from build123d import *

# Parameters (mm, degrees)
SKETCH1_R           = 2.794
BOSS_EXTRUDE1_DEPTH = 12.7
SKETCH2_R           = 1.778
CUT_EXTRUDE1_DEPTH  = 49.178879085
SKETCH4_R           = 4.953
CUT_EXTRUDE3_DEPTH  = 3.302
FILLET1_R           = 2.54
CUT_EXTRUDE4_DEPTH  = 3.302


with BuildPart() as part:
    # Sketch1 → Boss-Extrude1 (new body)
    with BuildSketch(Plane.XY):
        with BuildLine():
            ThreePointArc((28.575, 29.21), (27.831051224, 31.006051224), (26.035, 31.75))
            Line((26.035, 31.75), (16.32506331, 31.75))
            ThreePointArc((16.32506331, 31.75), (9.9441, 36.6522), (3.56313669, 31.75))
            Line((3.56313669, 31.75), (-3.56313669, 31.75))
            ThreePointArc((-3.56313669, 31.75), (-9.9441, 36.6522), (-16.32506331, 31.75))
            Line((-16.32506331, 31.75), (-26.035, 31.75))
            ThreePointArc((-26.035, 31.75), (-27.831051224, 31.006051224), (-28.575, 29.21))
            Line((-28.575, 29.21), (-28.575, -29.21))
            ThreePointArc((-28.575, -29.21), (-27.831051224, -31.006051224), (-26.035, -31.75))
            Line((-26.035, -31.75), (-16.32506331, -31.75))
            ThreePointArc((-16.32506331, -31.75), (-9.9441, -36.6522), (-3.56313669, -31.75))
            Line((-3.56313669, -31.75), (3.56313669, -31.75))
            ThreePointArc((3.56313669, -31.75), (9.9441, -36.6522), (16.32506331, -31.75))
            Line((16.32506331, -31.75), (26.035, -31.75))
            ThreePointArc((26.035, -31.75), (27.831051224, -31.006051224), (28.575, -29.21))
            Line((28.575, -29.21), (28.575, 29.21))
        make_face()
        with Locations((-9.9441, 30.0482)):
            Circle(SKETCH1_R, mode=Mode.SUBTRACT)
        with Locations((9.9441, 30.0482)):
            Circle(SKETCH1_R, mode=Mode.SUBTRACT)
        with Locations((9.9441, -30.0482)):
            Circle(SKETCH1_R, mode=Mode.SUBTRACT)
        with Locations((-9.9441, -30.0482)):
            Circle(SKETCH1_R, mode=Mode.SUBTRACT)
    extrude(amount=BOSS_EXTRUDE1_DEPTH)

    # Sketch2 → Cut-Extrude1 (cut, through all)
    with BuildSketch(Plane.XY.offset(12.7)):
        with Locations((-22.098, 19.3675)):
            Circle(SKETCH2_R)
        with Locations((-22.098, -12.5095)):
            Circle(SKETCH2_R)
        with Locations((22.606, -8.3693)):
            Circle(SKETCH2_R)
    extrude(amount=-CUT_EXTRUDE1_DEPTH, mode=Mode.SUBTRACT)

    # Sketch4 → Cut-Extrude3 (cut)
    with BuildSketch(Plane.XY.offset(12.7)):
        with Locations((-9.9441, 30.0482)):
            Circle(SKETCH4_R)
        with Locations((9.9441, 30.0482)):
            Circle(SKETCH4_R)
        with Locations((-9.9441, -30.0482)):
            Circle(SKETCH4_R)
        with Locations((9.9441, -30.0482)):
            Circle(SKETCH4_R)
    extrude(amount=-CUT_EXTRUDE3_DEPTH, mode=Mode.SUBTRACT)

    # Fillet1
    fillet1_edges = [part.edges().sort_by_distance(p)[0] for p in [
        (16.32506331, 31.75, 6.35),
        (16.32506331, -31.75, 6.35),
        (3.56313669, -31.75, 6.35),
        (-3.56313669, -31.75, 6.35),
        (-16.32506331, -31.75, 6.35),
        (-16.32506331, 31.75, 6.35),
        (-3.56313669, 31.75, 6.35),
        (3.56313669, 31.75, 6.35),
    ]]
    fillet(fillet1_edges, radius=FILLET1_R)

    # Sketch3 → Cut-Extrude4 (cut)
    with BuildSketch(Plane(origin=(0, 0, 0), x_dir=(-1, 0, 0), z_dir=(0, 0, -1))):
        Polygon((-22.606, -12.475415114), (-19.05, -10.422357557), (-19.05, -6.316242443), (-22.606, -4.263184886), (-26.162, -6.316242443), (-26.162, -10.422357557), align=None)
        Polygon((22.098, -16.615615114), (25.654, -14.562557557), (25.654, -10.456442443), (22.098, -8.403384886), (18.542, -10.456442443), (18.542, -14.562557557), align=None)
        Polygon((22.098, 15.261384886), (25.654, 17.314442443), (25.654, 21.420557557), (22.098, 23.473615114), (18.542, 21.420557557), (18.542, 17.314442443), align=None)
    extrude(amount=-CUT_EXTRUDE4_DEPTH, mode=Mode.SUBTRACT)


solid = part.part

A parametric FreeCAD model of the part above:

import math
import FreeCAD as App
import Part
import Sketcher
Q = App.Units.Quantity


def edges_at(feature, points):
    """Names of the edges that pass closest to the given points."""
    edges = feature.Shape.Edges
    near = lambda p: min(range(len(edges)), key=lambda i: edges[i].distToShape(Part.Vertex(*p))[0])
    return sorted({f"Edge{near(p) + 1}" for p in points})


def add_polygon(sketch, points):
    """Adds a closed chain of lines whose ends are joined by coincident constraints."""
    first, n = sketch.GeometryCount, len(points)
    for a, b in zip(points, points[1:] + points[:1]):
        sketch.addGeometry(Part.LineSegment(App.Vector(*a, 0), App.Vector(*b, 0)), False)
    for i in range(n):
        sketch.addConstraint(Sketcher.Constraint("Coincident", first + i, 2, first + (i + 1) % n, 1))

doc = App.newDocument("Part")
body = doc.addObject("PartDesign::Body", "Body")

# Sketch on XY plane
sketch1 = body.newObject("Sketcher::SketchObject", "Sketch")
sketch1.AttachmentSupport = (doc.getObject("XY_Plane"), [""])
sketch1.MapMode = "FlatFace"
sketch1.addGeometry(Part.ArcOfCircle(Part.Circle(App.Vector(26.035, 29.21, 0), App.Vector(0, 0, 1), 2.54), math.radians(0), math.radians(90)), False)
sketch1.addGeometry(Part.LineSegment(App.Vector(26.035, 31.75, 0), App.Vector(16.325063, 31.75, 0)), False)
sketch1.addGeometry(Part.ArcOfCircle(Part.Circle(App.Vector(9.9441, 30.0482, 0), App.Vector(0, 0, 1), 6.604), math.radians(14.933176), math.radians(165.066824)), False)
sketch1.addGeometry(Part.LineSegment(App.Vector(3.563137, 31.75, 0), App.Vector(-3.563137, 31.75, 0)), False)
sketch1.addGeometry(Part.ArcOfCircle(Part.Circle(App.Vector(-9.9441, 30.0482, 0), App.Vector(0, 0, 1), 6.604), math.radians(14.933176), math.radians(165.066824)), False)
sketch1.addGeometry(Part.LineSegment(App.Vector(-16.325063, 31.75, 0), App.Vector(-26.035, 31.75, 0)), False)
sketch1.addGeometry(Part.ArcOfCircle(Part.Circle(App.Vector(-26.035, 29.21, 0), App.Vector(0, 0, 1), 2.54), math.radians(90), math.radians(180)), False)
sketch1.addGeometry(Part.LineSegment(App.Vector(-28.575, 29.21, 0), App.Vector(-28.575, -29.21, 0)), False)
sketch1.addGeometry(Part.ArcOfCircle(Part.Circle(App.Vector(-26.035, -29.21, 0), App.Vector(0, 0, 1), 2.54), math.radians(-180), math.radians(-90)), False)
sketch1.addGeometry(Part.LineSegment(App.Vector(-26.035, -31.75, 0), App.Vector(-16.325063, -31.75, 0)), False)
sketch1.addGeometry(Part.ArcOfCircle(Part.Circle(App.Vector(-9.9441, -30.0482, 0), App.Vector(0, 0, 1), 6.604), math.radians(-165.066824), math.radians(-14.933176)), False)
sketch1.addGeometry(Part.LineSegment(App.Vector(-3.563137, -31.75, 0), App.Vector(3.563137, -31.75, 0)), False)
sketch1.addGeometry(Part.ArcOfCircle(Part.Circle(App.Vector(9.9441, -30.0482, 0), App.Vector(0, 0, 1), 6.604), math.radians(-165.066824), math.radians(-14.933176)), False)
sketch1.addGeometry(Part.LineSegment(App.Vector(16.325063, -31.75, 0), App.Vector(26.035, -31.75, 0)), False)
sketch1.addGeometry(Part.ArcOfCircle(Part.Circle(App.Vector(26.035, -29.21, 0), App.Vector(0, 0, 1), 2.54), math.radians(-90), math.radians(0)), False)
sketch1.addGeometry(Part.LineSegment(App.Vector(28.575, -29.21, 0), App.Vector(28.575, 29.21, 0)), False)
sketch1.addGeometry(Part.Circle(App.Vector(-9.9441, -30.0482, 0), App.Vector(0, 0, 1), 2.794), False)
sketch1.addGeometry(Part.Circle(App.Vector(9.9441, -30.0482, 0), App.Vector(0, 0, 1), 2.794), False)
sketch1.addGeometry(Part.Circle(App.Vector(-9.9441, 30.0482, 0), App.Vector(0, 0, 1), 2.794), False)
sketch1.addGeometry(Part.Circle(App.Vector(9.9441, 30.0482, 0), App.Vector(0, 0, 1), 2.794), False)
sketch1.addConstraint(Sketcher.Constraint("Tangent", 0, 2, 1, 1))
sketch1.addConstraint(Sketcher.Constraint("Coincident", 1, 2, 2, 1))
sketch1.addConstraint(Sketcher.Constraint("Coincident", 2, 2, 3, 1))
sketch1.addConstraint(Sketcher.Constraint("Coincident", 3, 2, 4, 1))
sketch1.addConstraint(Sketcher.Constraint("Coincident", 4, 2, 5, 1))
sketch1.addConstraint(Sketcher.Constraint("Tangent", 5, 2, 6, 1))
sketch1.addConstraint(Sketcher.Constraint("Tangent", 6, 2, 7, 1))
sketch1.addConstraint(Sketcher.Constraint("Tangent", 7, 2, 8, 1))
sketch1.addConstraint(Sketcher.Constraint("Tangent", 8, 2, 9, 1))
sketch1.addConstraint(Sketcher.Constraint("Coincident", 9, 2, 10, 1))
sketch1.addConstraint(Sketcher.Constraint("Coincident", 10, 2, 11, 1))
sketch1.addConstraint(Sketcher.Constraint("Coincident", 11, 2, 12, 1))
sketch1.addConstraint(Sketcher.Constraint("Coincident", 12, 2, 13, 1))
sketch1.addConstraint(Sketcher.Constraint("Tangent", 13, 2, 14, 1))
sketch1.addConstraint(Sketcher.Constraint("Tangent", 14, 2, 15, 1))
sketch1.addConstraint(Sketcher.Constraint("Tangent", 15, 2, 0, 1))
sketch1.addConstraint(Sketcher.Constraint("Horizontal", 1))
sketch1.addConstraint(Sketcher.Constraint("Horizontal", 3))
sketch1.addConstraint(Sketcher.Constraint("Horizontal", 5))
sketch1.addConstraint(Sketcher.Constraint("Vertical", 7))
sketch1.addConstraint(Sketcher.Constraint("Horizontal", 9))
sketch1.addConstraint(Sketcher.Constraint("Horizontal", 11))
sketch1.addConstraint(Sketcher.Constraint("Horizontal", 13))
sketch1.addConstraint(Sketcher.Constraint("Vertical", 15))
sketch1.addConstraint(Sketcher.Constraint("Coincident", 16, 3, 10, 3))
sketch1.addConstraint(Sketcher.Constraint("Coincident", 17, 3, 12, 3))
sketch1.addConstraint(Sketcher.Constraint("Coincident", 18, 3, 4, 3))
sketch1.addConstraint(Sketcher.Constraint("Coincident", 19, 3, 2, 3))
sketch1.addConstraint(Sketcher.Constraint("Equal", 2, 4))
sketch1.addConstraint(Sketcher.Constraint("Equal", 0, 6))
sketch1.addConstraint(Sketcher.Constraint("Equal", 6, 8))
sketch1.addConstraint(Sketcher.Constraint("Equal", 4, 10))
sketch1.addConstraint(Sketcher.Constraint("Equal", 10, 12))
sketch1.addConstraint(Sketcher.Constraint("Equal", 8, 14))
sketch1.addConstraint(Sketcher.Constraint("Equal", 16, 17))
sketch1.addConstraint(Sketcher.Constraint("Equal", 17, 18))
sketch1.addConstraint(Sketcher.Constraint("Equal", 18, 19))
sketch1.addConstraint(Sketcher.Constraint("Symmetric", 0, 3, 8, 3, -1, 1))
sketch1.addConstraint(Sketcher.Constraint("Symmetric", 2, 3, 10, 3, -1, 1))
sketch1.addConstraint(Sketcher.Constraint("Symmetric", 4, 3, 12, 3, -1, 1))
sketch1.addConstraint(Sketcher.Constraint("Symmetric", 2, 3, 4, 3, -2))
sketch1.addConstraint(Sketcher.Constraint("Horizontal", 0, 3, 6, 3))
sketch1.addConstraint(Sketcher.Constraint("Horizontal", 8, 3, 14, 3))
sketch1.addConstraint(Sketcher.Constraint("Horizontal", 1, 2, 2, 2))
sketch1.addConstraint(Sketcher.Constraint("Horizontal", 9, 2, 10, 2))
sketch1.addConstraint(Sketcher.Constraint("Radius", 0, Q("0.1 in")))
sketch1.addConstraint(Sketcher.Constraint("Diameter", 16, Q("0.22 in")))
sketch1.addConstraint(Sketcher.Constraint("Radius", 2, Q("0.26 in")))
sketch1.addConstraint(Sketcher.Constraint("DistanceY", 7, 2, 7, 1, Q("2.3 in")))
sketch1.addConstraint(Sketcher.Constraint("DistanceX", 6, 3, 0, 3, Q("2.05 in")))
sketch1.addConstraint(Sketcher.Constraint("DistanceY", -1, 1, 2, 3, Q("1.183 in")))
sketch1.addConstraint(Sketcher.Constraint("DistanceX", 4, 3, 2, 3, Q("0.783 in")))
pad1 = body.newObject("PartDesign::Pad", "Pad")
pad1.Profile = sketch1
pad1.Length = Q("0.5 in")

# Sketch on XY plane
sketch2 = body.newObject("Sketcher::SketchObject", "Sketch001")
sketch2.AttachmentSupport = (doc.getObject("XY_Plane"), [""])
sketch2.MapMode = "FlatFace"
sketch2.AttachmentOffset = App.Placement(App.Vector(0, 0, 0.5 * 25.4), App.Rotation())
sketch2.addGeometry(Part.Circle(App.Vector(-22.098, 19.3675, 0), App.Vector(0, 0, 1), 1.778), False)
sketch2.addGeometry(Part.Circle(App.Vector(-22.098, -12.5095, 0), App.Vector(0, 0, 1), 1.778), False)
sketch2.addGeometry(Part.Circle(App.Vector(22.606, -8.3693, 0), App.Vector(0, 0, 1), 1.778), False)
sketch2.addConstraint(Sketcher.Constraint("Equal", 0, 1))
sketch2.addConstraint(Sketcher.Constraint("Equal", 1, 2))
sketch2.addConstraint(Sketcher.Constraint("Vertical", 0, 3, 1, 3))
sketch2.addConstraint(Sketcher.Constraint("Diameter", 0, Q("0.14 in")))
sketch2.addConstraint(Sketcher.Constraint("DistanceX", 0, 3, -1, 1, Q("0.87 in")))
sketch2.addConstraint(Sketcher.Constraint("DistanceX", -1, 1, 2, 3, Q("0.89 in")))
sketch2.addConstraint(Sketcher.Constraint("DistanceY", 1, 3, 0, 3, Q("1.255 in")))
sketch2.addConstraint(Sketcher.Constraint("DistanceY", 1, 3, 2, 3, Q("0.163 in")))
sketch2.addConstraint(Sketcher.Constraint("DistanceY", -1, 1, 0, 3, Q("0.7625 in")))
pocket1 = body.newObject("PartDesign::Pocket", "Pocket")
pocket1.Profile = sketch2
pocket1.Type = "ThroughAll"

# Sketch on XY plane
sketch3 = body.newObject("Sketcher::SketchObject", "Sketch002")
sketch3.AttachmentSupport = (doc.getObject("XY_Plane"), [""])
sketch3.MapMode = "FlatFace"
sketch3.AttachmentOffset = App.Placement(App.Vector(0, 0, 0.5 * 25.4), App.Rotation())
sketch3.addGeometry(Part.Circle(App.Vector(-9.9441, 30.0482, 0), App.Vector(0, 0, 1), 4.953), False)
sketch3.addGeometry(Part.Circle(App.Vector(9.9441, 30.0482, 0), App.Vector(0, 0, 1), 4.953), False)
sketch3.addGeometry(Part.Circle(App.Vector(-9.9441, -30.0482, 0), App.Vector(0, 0, 1), 4.953), False)
sketch3.addGeometry(Part.Circle(App.Vector(9.9441, -30.0482, 0), App.Vector(0, 0, 1), 4.953), False)
sketch3.addConstraint(Sketcher.Constraint("Equal", 0, 1))
sketch3.addConstraint(Sketcher.Constraint("Equal", 1, 2))
sketch3.addConstraint(Sketcher.Constraint("Equal", 2, 3))
sketch3.addConstraint(Sketcher.Constraint("Symmetric", 1, 3, 2, 3, -1, 1))
sketch3.addConstraint(Sketcher.Constraint("Symmetric", 0, 3, 3, 3, -1, 1))
sketch3.addConstraint(Sketcher.Constraint("Symmetric", 0, 3, 1, 3, -2))
sketch3.addConstraint(Sketcher.Constraint("Diameter", 0, Q("0.39 in")))
sketch3.addConstraint(Sketcher.Constraint("DistanceY", -1, 1, 0, 3, Q("1.183 in")))
sketch3.addConstraint(Sketcher.Constraint("DistanceX", 0, 3, 1, 3, Q("0.783 in")))
pocket2 = body.newObject("PartDesign::Pocket", "Pocket001")
pocket2.Profile = sketch3
pocket2.Length = Q("0.13 in")
doc.recompute()

fillet = body.newObject("PartDesign::Fillet", "Fillet")
fillet.Base = (pocket2, edges_at(pocket2, [
    (16.325, 31.75, 6.35),
    (16.325, -31.75, 6.35),
    (3.563, -31.75, 6.35),
    (-3.563, -31.75, 6.35),
    (-16.325, -31.75, 6.35),
    (-16.325, 31.75, 6.35),
    (-3.563, 31.75, 6.35),
    (3.563, 31.75, 6.35),
]))
fillet.Radius = Q("0.1 in")

# Sketch on XY plane
sketch4 = body.newObject("Sketcher::SketchObject", "Sketch003")
sketch4.AttachmentSupport = (doc.getObject("XY_Plane"), [""])
sketch4.MapMode = "FlatFace"
add_polygon(sketch4, [(22.606, -12.475415), (19.05, -10.422358), (19.05, -6.316242), (22.606, -4.263185), (26.162, -6.316242), (26.162, -10.422358)])  # lines 0-5
add_polygon(sketch4, [(-22.098, -16.615615), (-25.654, -14.562558), (-25.654, -10.456442), (-22.098, -8.403385), (-18.542, -10.456442), (-18.542, -14.562558)])  # lines 6-11
add_polygon(sketch4, [(-22.098, 15.261385), (-25.654, 17.314442), (-25.654, 21.420558), (-22.098, 23.473615), (-18.542, 21.420558), (-18.542, 17.314442)])  # lines 12-17
sketch4.addConstraint(Sketcher.Constraint("Vertical", 1))
sketch4.addConstraint(Sketcher.Constraint("Vertical", 4))
sketch4.addConstraint(Sketcher.Constraint("Vertical", 7))
sketch4.addConstraint(Sketcher.Constraint("Vertical", 10))
sketch4.addConstraint(Sketcher.Constraint("Vertical", 13))
sketch4.addConstraint(Sketcher.Constraint("Vertical", 16))
sketch4.addConstraint(Sketcher.Constraint("Parallel", 0, 3))
sketch4.addConstraint(Sketcher.Constraint("Parallel", 2, 5))
sketch4.addConstraint(Sketcher.Constraint("Parallel", 3, 6))
sketch4.addConstraint(Sketcher.Constraint("Parallel", 5, 8))
sketch4.addConstraint(Sketcher.Constraint("Parallel", 6, 9))
sketch4.addConstraint(Sketcher.Constraint("Parallel", 8, 11))
sketch4.addConstraint(Sketcher.Constraint("Parallel", 9, 12))
sketch4.addConstraint(Sketcher.Constraint("Parallel", 11, 14))
sketch4.addConstraint(Sketcher.Constraint("Parallel", 12, 15))
sketch4.addConstraint(Sketcher.Constraint("Parallel", 14, 17))
sketch4.addConstraint(Sketcher.Constraint("Horizontal", 1, 2, 3, 2))
sketch4.addConstraint(Sketcher.Constraint("Horizontal", 0, 2, 4, 2))
sketch4.addConstraint(Sketcher.Constraint("Horizontal", 7, 2, 9, 2))
sketch4.addConstraint(Sketcher.Constraint("Horizontal", 6, 2, 10, 2))
sketch4.addConstraint(Sketcher.Constraint("Horizontal", 13, 2, 15, 2))
sketch4.addConstraint(Sketcher.Constraint("Horizontal", 12, 2, 16, 2))
sketch4.addConstraint(Sketcher.Constraint("Vertical", 2, 2, 5, 2))
sketch4.addConstraint(Sketcher.Constraint("Vertical", 7, 2, 12, 2))
sketch4.addConstraint(Sketcher.Constraint("Vertical", 11, 2, 14, 2))
sketch4.addConstraint(Sketcher.Constraint("Equal", 4, 7))
sketch4.addConstraint(Sketcher.Constraint("Equal", 10, 13))
sketch4.addConstraint(Sketcher.Constraint("Equal", 5, 6))
sketch4.addConstraint(Sketcher.Constraint("Angle", 0, Q("150 deg")))
sketch4.addConstraint(Sketcher.Constraint("DistanceX", 6, 2, 5, 2, Q("1.9 in")))
sketch4.addConstraint(Sketcher.Constraint("DistanceX", -1, 1, 0, 2, Q("0.75 in")))
sketch4.addConstraint(Sketcher.Constraint("DistanceX", -1, 1, 2, 2, Q("0.89 in")))
sketch4.addConstraint(Sketcher.Constraint("DistanceY", 6, 2, 0, 2, Q("0.163 in")))
sketch4.addConstraint(Sketcher.Constraint("DistanceY", 6, 2, 12, 2, Q("1.255 in")))
sketch4.addConstraint(Sketcher.Constraint("DistanceY", 1, 1, 1, 2, 4.106115))
sketch4.addConstraint(Sketcher.Constraint("DistanceY", 0, 2, -1, 1, 10.422358))
pocket3 = body.newObject("PartDesign::Pocket", "Pocket002")
pocket3.Profile = sketch4
pocket3.Length = Q("0.13 in")
pocket3.Reversed = True

doc.recompute()
